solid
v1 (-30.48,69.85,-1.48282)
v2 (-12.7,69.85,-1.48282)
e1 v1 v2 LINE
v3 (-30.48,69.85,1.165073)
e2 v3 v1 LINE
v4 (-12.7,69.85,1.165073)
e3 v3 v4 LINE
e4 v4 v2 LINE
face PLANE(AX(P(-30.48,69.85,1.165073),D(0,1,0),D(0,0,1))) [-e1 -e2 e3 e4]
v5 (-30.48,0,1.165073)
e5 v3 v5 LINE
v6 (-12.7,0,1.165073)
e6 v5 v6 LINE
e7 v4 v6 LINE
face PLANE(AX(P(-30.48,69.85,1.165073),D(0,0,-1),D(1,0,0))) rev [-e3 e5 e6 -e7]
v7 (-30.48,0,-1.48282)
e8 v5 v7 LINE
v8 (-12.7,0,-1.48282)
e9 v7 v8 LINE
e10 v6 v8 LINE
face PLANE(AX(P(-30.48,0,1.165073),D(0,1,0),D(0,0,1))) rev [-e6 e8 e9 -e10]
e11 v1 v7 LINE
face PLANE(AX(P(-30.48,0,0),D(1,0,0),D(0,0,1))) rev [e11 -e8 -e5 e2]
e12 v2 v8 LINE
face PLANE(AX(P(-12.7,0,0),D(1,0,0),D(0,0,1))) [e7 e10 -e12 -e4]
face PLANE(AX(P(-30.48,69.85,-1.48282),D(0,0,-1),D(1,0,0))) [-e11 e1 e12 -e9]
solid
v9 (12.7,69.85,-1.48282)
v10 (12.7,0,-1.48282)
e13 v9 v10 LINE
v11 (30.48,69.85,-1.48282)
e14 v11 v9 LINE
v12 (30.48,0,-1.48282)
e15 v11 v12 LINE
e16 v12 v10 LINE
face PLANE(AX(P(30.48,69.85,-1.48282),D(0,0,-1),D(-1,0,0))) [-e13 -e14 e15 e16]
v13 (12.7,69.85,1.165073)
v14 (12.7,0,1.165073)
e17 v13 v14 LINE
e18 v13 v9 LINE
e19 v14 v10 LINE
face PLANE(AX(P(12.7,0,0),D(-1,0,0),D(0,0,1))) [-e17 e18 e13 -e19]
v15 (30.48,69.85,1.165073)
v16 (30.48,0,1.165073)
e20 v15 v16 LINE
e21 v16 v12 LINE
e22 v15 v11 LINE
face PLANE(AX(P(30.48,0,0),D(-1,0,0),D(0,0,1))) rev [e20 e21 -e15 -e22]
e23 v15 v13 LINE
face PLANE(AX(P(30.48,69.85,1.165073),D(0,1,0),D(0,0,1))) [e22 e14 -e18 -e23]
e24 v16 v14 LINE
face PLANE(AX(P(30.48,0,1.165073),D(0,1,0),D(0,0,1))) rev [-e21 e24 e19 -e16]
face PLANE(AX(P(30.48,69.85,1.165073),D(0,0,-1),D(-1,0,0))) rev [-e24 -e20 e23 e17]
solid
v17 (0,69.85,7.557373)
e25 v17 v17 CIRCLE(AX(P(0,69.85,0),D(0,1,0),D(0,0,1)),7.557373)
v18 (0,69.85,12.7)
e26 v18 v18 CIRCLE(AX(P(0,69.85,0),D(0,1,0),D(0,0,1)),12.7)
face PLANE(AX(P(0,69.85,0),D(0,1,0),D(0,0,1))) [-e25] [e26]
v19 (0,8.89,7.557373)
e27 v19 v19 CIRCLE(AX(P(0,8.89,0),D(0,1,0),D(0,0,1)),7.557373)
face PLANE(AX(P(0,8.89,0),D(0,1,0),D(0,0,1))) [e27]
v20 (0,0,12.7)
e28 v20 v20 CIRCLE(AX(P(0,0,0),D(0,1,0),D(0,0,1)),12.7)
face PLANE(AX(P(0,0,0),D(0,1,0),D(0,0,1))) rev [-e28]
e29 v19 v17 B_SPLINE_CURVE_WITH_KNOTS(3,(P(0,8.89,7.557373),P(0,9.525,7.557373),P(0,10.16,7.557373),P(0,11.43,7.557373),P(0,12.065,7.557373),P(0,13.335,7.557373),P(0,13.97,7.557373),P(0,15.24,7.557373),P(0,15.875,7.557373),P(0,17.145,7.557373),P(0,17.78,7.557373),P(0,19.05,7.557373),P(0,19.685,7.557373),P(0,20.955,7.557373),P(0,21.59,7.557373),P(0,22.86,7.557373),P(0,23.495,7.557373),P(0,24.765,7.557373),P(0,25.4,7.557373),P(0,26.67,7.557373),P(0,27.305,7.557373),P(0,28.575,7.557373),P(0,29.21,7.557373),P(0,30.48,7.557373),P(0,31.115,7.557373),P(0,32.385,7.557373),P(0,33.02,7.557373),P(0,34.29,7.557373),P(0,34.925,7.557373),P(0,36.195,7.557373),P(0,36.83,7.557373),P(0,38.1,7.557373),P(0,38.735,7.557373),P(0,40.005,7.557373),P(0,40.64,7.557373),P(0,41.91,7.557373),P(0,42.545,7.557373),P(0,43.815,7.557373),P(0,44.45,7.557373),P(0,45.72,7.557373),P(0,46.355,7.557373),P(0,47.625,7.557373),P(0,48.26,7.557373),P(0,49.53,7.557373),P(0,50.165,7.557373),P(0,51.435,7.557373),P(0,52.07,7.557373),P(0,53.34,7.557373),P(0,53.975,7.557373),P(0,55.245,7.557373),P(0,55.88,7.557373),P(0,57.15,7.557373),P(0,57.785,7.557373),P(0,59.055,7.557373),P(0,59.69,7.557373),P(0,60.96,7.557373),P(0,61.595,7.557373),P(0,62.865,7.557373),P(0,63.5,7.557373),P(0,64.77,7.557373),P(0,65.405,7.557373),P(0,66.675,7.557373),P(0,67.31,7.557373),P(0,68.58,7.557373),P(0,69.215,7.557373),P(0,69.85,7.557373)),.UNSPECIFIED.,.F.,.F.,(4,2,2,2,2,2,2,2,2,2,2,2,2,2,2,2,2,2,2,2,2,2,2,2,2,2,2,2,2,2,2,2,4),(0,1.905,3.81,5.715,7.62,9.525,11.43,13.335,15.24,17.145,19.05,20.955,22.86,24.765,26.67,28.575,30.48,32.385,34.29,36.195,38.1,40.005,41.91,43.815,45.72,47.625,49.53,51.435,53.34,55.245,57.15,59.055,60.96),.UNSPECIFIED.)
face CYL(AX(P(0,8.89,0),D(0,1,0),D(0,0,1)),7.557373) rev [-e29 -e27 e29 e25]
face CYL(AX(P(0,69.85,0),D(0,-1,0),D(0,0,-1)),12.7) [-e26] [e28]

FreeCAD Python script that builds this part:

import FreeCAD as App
import Part
import Sketcher
from FreeCAD import Vector
Q = App.Units.Quantity


def add_polygon(sketch, points):
    """Adds a closed chain of lines whose ends are joined by coincident constraints."""
    first, n = sketch.GeometryCount, len(points)
    for a, b in zip(points, points[1:] + points[:1]):
        sketch.addGeometry(Part.LineSegment(App.Vector(*a, 0), App.Vector(*b, 0)), False)
    for i in range(n):
        sketch.addConstraint(Sketcher.Constraint("Coincident", first + i, 2, first + (i + 1) % n, 1))

doc = App.newDocument("Part")
params = doc.addObject("Spreadsheet::Sheet", "Params")
for row, (alias, value) in enumerate([
    ("sketch1_diameter", "1 in"),
    ("pad1_length", "2.75 in"),
    ("pocket1_length", "2.4 in"),
    ("sketch3_width", "2.75 in"),
    ("pad2_length", "0.7 in"),
], start=1):
    params.set(f"A{row}", alias)
    params.set(f"B{row}", "=" + value)
    params.setAlias(f"B{row}", alias)

body = doc.addObject("PartDesign::Body", "Body")

sketch1 = body.newObject("Sketcher::SketchObject", "Sketch")
sketch1.AttachmentSupport = (doc.getObject("XZ_Plane"), [""])
sketch1.MapMode = "FlatFace"
sketch1.addGeometry(Part.Circle(Vector(0, 0, 0), Vector(0, 0, 1), 13), False)
sketch1.addConstraint([
    Sketcher.Constraint("Coincident", 0, 3, -1, 1),
    Sketcher.Constraint("Diameter", 0, Q("1 in")),
])
sketch1.setExpression("Constraints[1]", "Params.sketch1_diameter")
pad1 = body.newObject("PartDesign::Pad", "Pad")
pad1.Profile = sketch1
pad1.setExpression("Length", "Params.pad1_length")
pad1.Reversed = True

sketch2 = body.newObject("Sketcher::SketchObject", "Sketch001")
sketch2.AttachmentSupport = (doc.getObject("XZ_Plane"), [""])
sketch2.MapMode = "FlatFace"
sketch2.AttachmentOffset = App.Placement(Vector(0, 0, -2.75 * 25.4), App.Rotation())
sketch2.addGeometry(Part.Circle(Vector(0, 0, 0), Vector(0, 0, 1), 8), False)
sketch2.addConstraint([
    Sketcher.Constraint("Coincident", 0, 3, -1, 1),
    Sketcher.Constraint("Diameter", 0, Q("15.114746 mm")),
])
pocket1 = body.newObject("PartDesign::Pocket", "Pocket")
pocket1.Profile = sketch2
pocket1.setExpression("Length", "Params.pocket1_length")
pocket1.Reversed = True
body2 = doc.addObject("PartDesign::Body", "Body001")

sketch3 = body2.newObject("Sketcher::SketchObject", "Sketch002")
sketch3.AttachmentSupport = (doc.getObject("YZ_Plane001"), [""])
sketch3.MapMode = "FlatFace"
sketch3.AttachmentOffset = App.Placement(Vector(0, 0, 0.5 * 25.4), App.Rotation())
add_polygon(sketch3, [(69.8, 1.2), (0, 1.2), (0, -1.5), (69.8, -1.5)])
sketch3.addConstraint([
    Sketcher.Constraint("Horizontal", 0),
    Sketcher.Constraint("Vertical", 1),
    Sketcher.Constraint("Horizontal", 2),
    Sketcher.Constraint("Vertical", 3),
    Sketcher.Constraint("PointOnObject", 0, 2, -2),
    Sketcher.Constraint("DistanceX", 0, 2, 0, 1, Q("2.75 in")),
    Sketcher.Constraint("DistanceY", 1, 2, 1, 1, Q("2.647893 mm")),
    Sketcher.Constraint("DistanceY", 1, 2, -1, 1, Q("1.48282 mm")),
])
sketch3.setExpression("Constraints[9]", "Params.sketch3_width")
pad2 = body2.newObject("PartDesign::Pad", "Pad001")
pad2.Profile = sketch3
pad2.setExpression("Length", "Params.pad2_length")
body3 = doc.addObject("PartDesign::Body", "Body002")
doc.recompute()

mirroring = doc.addObject("Part::Mirroring", "Mirroring")
mirroring.Source = body2
mirroring.Base = Vector(0, 0, 0)
mirroring.Normal = Vector(1, 0, 0)
body3.BaseFeature = mirroring
doc.recompute()
mirroring.Visibility = False

doc.recompute()
